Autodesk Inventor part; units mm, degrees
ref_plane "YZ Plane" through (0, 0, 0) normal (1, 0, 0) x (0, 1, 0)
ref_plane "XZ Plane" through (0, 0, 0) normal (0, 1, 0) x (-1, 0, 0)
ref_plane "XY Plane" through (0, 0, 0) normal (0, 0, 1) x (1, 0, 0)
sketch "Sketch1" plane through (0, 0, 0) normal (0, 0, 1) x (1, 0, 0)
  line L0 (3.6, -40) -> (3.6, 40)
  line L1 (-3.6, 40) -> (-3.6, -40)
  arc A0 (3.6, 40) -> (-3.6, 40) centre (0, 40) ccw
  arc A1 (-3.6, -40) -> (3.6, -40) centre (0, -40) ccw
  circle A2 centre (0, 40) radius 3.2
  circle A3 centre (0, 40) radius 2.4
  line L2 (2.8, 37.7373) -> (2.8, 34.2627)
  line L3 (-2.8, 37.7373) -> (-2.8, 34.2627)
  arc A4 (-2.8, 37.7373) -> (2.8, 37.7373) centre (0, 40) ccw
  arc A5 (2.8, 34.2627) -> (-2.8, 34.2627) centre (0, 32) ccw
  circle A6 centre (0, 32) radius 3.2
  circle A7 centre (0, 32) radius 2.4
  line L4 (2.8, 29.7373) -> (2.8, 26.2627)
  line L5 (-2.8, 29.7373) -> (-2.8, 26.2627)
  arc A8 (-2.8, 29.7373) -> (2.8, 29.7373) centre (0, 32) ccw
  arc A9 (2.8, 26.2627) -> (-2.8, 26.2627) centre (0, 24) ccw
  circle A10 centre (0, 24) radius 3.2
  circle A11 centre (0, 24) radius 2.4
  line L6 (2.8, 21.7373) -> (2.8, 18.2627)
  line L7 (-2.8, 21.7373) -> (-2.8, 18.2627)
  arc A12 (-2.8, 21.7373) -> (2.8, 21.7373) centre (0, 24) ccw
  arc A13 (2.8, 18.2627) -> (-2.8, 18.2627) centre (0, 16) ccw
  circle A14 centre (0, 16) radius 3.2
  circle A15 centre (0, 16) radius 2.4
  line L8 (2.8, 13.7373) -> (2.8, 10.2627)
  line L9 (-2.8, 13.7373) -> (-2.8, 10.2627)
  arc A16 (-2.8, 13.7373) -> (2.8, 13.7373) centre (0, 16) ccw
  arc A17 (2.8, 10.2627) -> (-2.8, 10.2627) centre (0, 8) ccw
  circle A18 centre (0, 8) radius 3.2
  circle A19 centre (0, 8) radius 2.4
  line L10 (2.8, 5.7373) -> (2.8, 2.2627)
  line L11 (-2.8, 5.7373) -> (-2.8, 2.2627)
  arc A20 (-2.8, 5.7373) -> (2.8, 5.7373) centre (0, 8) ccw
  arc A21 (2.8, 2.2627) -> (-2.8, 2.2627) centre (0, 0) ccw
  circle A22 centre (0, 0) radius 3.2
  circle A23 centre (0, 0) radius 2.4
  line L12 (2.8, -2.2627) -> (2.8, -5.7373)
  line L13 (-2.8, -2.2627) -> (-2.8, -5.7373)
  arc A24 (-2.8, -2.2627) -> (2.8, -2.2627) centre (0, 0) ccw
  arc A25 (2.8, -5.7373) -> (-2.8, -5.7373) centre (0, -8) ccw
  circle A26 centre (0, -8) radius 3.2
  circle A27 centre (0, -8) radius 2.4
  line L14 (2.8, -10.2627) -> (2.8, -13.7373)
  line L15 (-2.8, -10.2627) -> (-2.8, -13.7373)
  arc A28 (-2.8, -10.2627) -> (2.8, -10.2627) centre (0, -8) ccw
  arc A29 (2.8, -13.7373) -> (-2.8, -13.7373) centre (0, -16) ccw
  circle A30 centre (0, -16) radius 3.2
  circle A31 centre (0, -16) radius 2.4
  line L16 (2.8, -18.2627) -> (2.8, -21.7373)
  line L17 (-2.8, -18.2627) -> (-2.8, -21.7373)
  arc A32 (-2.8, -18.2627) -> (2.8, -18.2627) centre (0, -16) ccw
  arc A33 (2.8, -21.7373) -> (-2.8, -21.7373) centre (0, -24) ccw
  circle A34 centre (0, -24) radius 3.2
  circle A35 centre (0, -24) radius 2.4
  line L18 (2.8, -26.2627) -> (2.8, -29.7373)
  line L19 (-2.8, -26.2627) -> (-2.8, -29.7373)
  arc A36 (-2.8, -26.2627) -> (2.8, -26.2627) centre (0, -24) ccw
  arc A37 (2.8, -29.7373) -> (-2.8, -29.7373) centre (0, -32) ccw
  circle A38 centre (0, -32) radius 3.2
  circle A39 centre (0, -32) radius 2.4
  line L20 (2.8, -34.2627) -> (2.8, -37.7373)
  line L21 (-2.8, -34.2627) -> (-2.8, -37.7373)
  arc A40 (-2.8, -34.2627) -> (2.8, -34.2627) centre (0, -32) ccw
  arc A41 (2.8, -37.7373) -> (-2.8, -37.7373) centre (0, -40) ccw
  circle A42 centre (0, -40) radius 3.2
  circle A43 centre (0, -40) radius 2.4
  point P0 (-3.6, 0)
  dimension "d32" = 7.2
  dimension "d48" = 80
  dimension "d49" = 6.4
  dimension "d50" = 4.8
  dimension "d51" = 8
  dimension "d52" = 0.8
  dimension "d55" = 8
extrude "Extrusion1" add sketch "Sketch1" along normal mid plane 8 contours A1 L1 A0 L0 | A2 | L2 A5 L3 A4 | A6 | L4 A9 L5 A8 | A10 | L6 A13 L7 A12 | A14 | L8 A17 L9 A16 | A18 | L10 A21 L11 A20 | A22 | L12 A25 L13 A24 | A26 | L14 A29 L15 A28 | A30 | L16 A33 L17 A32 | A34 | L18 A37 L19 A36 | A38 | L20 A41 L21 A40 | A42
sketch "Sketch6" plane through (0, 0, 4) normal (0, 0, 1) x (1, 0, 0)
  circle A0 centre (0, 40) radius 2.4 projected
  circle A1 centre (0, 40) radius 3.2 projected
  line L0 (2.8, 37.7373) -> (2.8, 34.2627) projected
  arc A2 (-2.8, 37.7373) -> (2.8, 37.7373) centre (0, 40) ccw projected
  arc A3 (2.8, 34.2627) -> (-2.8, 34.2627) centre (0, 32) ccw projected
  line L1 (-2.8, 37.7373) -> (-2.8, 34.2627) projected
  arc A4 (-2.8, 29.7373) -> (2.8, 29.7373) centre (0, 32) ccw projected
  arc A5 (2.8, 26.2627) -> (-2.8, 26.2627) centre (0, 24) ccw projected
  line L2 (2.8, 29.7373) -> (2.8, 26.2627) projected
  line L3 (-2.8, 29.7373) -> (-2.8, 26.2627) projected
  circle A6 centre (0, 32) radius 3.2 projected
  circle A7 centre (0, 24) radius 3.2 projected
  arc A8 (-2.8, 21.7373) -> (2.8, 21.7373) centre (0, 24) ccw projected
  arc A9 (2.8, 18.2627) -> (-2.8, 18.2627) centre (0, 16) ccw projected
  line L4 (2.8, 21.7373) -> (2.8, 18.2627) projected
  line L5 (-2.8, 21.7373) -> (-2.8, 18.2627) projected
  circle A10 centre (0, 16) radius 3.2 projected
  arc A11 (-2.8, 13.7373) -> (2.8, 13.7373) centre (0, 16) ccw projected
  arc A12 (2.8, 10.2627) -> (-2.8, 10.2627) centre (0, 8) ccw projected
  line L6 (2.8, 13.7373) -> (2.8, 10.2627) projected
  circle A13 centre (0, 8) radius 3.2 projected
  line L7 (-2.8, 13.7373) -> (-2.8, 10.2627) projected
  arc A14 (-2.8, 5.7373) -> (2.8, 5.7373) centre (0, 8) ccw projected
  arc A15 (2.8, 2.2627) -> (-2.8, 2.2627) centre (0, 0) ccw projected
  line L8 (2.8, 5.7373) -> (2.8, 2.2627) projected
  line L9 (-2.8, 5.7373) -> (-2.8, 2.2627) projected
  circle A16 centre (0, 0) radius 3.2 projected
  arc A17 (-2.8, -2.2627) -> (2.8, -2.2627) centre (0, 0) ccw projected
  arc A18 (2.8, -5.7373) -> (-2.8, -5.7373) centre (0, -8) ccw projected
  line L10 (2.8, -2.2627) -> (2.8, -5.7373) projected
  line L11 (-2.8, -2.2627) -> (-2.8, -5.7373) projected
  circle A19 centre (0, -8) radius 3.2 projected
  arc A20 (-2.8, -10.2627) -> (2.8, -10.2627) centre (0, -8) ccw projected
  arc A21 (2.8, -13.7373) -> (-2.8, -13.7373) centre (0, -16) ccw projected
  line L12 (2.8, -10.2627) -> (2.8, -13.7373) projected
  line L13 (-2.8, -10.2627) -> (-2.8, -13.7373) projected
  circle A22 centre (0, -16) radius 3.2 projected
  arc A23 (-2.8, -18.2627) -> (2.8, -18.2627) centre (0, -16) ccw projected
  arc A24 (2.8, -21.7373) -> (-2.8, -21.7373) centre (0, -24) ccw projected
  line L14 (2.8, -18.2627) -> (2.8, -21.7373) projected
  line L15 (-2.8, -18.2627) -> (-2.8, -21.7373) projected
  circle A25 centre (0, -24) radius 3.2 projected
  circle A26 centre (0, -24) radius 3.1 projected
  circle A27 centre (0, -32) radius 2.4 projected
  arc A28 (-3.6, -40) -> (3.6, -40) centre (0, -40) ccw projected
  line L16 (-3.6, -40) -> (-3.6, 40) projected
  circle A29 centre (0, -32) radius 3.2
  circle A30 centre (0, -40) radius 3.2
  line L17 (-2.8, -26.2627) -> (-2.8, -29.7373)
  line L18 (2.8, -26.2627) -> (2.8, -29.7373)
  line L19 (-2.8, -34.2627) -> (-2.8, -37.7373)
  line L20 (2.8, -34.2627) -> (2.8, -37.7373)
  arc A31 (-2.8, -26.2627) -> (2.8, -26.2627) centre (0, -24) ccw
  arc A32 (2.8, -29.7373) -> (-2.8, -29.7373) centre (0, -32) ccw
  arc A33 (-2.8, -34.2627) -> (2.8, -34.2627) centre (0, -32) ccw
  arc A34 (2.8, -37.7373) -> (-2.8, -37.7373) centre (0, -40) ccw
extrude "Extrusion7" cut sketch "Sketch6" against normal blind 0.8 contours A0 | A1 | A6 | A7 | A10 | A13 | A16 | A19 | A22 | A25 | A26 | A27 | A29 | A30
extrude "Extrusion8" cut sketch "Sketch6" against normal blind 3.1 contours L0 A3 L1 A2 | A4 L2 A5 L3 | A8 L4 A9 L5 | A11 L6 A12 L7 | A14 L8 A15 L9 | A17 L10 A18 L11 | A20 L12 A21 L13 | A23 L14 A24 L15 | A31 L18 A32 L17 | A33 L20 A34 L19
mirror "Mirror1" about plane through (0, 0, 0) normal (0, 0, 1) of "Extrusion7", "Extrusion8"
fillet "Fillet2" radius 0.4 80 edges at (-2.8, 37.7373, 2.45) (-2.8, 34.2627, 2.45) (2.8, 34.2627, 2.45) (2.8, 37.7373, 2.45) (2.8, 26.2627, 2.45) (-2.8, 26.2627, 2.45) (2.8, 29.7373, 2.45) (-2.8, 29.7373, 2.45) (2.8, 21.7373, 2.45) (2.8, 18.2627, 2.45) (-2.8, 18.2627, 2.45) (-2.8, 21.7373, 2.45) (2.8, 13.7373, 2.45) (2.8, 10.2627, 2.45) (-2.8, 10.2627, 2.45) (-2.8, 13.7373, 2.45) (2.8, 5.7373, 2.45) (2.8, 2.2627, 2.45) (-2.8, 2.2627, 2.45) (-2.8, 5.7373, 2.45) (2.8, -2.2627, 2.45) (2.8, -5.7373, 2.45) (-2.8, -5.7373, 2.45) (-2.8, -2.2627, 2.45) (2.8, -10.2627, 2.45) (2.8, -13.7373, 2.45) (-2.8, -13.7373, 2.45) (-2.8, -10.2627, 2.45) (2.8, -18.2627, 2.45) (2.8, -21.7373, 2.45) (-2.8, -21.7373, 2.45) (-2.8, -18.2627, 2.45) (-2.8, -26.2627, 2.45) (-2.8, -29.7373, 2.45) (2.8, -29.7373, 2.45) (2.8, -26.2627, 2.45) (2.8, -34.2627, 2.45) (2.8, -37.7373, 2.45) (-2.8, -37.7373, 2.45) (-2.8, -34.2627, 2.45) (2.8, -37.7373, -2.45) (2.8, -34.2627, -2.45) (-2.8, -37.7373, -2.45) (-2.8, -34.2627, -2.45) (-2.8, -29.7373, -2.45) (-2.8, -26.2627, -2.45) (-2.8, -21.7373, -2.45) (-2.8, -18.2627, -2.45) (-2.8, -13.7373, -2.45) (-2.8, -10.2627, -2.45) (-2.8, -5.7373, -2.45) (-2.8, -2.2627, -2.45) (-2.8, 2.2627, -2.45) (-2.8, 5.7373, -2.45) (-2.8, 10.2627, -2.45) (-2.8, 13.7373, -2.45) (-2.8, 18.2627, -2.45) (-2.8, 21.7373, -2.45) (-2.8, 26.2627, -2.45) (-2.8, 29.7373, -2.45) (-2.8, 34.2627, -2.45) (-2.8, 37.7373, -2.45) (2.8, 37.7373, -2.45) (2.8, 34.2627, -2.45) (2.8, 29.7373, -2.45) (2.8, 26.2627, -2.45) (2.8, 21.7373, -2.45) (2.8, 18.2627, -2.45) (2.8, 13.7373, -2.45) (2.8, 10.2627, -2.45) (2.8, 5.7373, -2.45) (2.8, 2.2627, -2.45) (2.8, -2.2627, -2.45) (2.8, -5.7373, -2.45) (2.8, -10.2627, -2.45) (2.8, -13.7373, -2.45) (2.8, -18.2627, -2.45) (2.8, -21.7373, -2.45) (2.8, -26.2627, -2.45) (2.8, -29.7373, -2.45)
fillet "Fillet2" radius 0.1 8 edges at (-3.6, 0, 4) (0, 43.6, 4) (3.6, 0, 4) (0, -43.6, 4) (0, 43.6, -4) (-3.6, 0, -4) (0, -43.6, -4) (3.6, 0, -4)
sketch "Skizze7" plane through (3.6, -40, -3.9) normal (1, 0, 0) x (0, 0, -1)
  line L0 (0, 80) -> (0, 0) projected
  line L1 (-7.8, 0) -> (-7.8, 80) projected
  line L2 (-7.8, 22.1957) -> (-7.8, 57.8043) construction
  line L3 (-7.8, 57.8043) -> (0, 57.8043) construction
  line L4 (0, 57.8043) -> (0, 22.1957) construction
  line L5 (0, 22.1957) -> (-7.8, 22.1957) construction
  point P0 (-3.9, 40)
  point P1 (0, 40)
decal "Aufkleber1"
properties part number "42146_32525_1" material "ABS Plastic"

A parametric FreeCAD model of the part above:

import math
import FreeCAD as App
import Part
import Sketcher
from FreeCAD import Vector
Q = App.Units.Quantity


def edges_at(feature, points):
    """Names of the edges that pass closest to the given points."""
    edges = feature.Shape.Edges
    near = lambda p: min(range(len(edges)), key=lambda i: edges[i].distToShape(Part.Vertex(*p))[0])
    return sorted({f"Edge{near(p) + 1}" for p in points})

doc = App.newDocument("Part")
body = doc.addObject("PartDesign::Body", "Body")

sketch1 = body.newObject("Sketcher::SketchObject", "Sketch")
sketch1.AttachmentSupport = (doc.getObject("XY_Plane"), [""])
sketch1.MapMode = "FlatFace"
sketch1.addGeometry([
    Part.ArcOfCircle(Part.Circle(Vector(0, -40, 0), Vector(0, 0, 1), 3.6), math.radians(180), math.radians(360)),
    Part.LineSegment(Vector(3.6, -40, 0), Vector(3.6, 40, 0)),
    Part.ArcOfCircle(Part.Circle(Vector(0, 40, 0), Vector(0, 0, 1), 3.6), math.radians(0), math.radians(180)),
    Part.LineSegment(Vector(-3.6, 40, 0), Vector(-3.6, -40, 0)),
    Part.Circle(Vector(0, -40, 0), Vector(0, 0, 1), 2.4),
    Part.Circle(Vector(0, -32, 0), Vector(0, 0, 1), 2.4),
    Part.Circle(Vector(0, -24, 0), Vector(0, 0, 1), 2.4),
    Part.Circle(Vector(0, -16, 0), Vector(0, 0, 1), 2.4),
    Part.Circle(Vector(0, -8, 0), Vector(0, 0, 1), 2.4),
    Part.Circle(Vector(0, 0, 0), Vector(0, 0, 1), 2.4),
    Part.Circle(Vector(0, 8, 0), Vector(0, 0, 1), 2.4),
    Part.Circle(Vector(0, 16, 0), Vector(0, 0, 1), 2.4),
    Part.Circle(Vector(0, 24, 0), Vector(0, 0, 1), 2.4),
    Part.Circle(Vector(0, 32, 0), Vector(0, 0, 1), 2.4),
    Part.Circle(Vector(0, 40, 0), Vector(0, 0, 1), 2.4),
], False)
sketch1.addConstraint([
    Sketcher.Constraint("Tangent", 0, 2, 1, 1),
    Sketcher.Constraint("Tangent", 1, 2, 2, 1),
    Sketcher.Constraint("Tangent", 2, 2, 3, 1),
    Sketcher.Constraint("Tangent", 3, 2, 0, 1),
    Sketcher.Constraint("Vertical", 1),
    Sketcher.Constraint("Vertical", 3),
    Sketcher.Constraint("Coincident", 9, 3, -1, 1),
    Sketcher.Constraint("Coincident", 4, 3, 0, 3),
    Sketcher.Constraint("Coincident", 14, 3, 2, 3),
    Sketcher.Constraint("Equal", 4, 5),
    Sketcher.Constraint("Equal", 5, 6),
    Sketcher.Constraint("Equal", 6, 7),
    Sketcher.Constraint("Equal", 7, 8),
    Sketcher.Constraint("Equal", 8, 9),
    Sketcher.Constraint("Equal", 9, 10),
    Sketcher.Constraint("Equal", 10, 11),
    Sketcher.Constraint("Equal", 11, 12),
    Sketcher.Constraint("Equal", 12, 13),
    Sketcher.Constraint("Equal", 13, 14),
    Sketcher.Constraint("Symmetric", 0, 3, 2, 3, -1, 1),
    Sketcher.Constraint("Symmetric", 8, 3, 10, 3, -1, 1),
    Sketcher.Constraint("Symmetric", 7, 3, 11, 3, -1, 1),
    Sketcher.Constraint("Symmetric", 6, 3, 12, 3, -1, 1),
    Sketcher.Constraint("Symmetric", 5, 3, 13, 3, -1, 1),
    Sketcher.Constraint("PointOnObject", 5, 3, -2),
    Sketcher.Constraint("PointOnObject", 6, 3, -2),
    Sketcher.Constraint("PointOnObject", 7, 3, -2),
    Sketcher.Constraint("PointOnObject", 8, 3, -2),
    Sketcher.Constraint("Diameter", 4, Q("4.8 mm")),
    Sketcher.Constraint("Radius", 0, Q("3.6 mm")),
    Sketcher.Constraint("DistanceY", 1, 1, 1, 2, Q("80 mm")),
    Sketcher.Constraint("DistanceY", 8, 3, -1, 1, Q("8 mm")),
    Sketcher.Constraint("DistanceY", 0, 3, 5, 3, Q("8 mm")),
    Sketcher.Constraint("DistanceY", 5, 3, 6, 3, Q("8 mm")),
    Sketcher.Constraint("DistanceY", 6, 3, 7, 3, Q("8 mm")),
])
pad1 = body.newObject("PartDesign::Pad", "Pad")
pad1.Profile = sketch1
pad1.Length = 8
pad1.Midplane = True

sketch2 = body.newObject("Sketcher::SketchObject", "Sketch001")
sketch2.AttachmentSupport = (doc.getObject("XY_Plane"), [""])
sketch2.MapMode = "FlatFace"
sketch2.AttachmentOffset = App.Placement(Vector(0, 0, 4), App.Rotation())
sketch2.addGeometry([
    Part.Circle(Vector(0, 40, 0), Vector(0, 0, 1), 3.2),
    Part.Circle(Vector(0, 32, 0), Vector(0, 0, 1), 3.2),
    Part.Circle(Vector(0, 24, 0), Vector(0, 0, 1), 3.2),
    Part.Circle(Vector(0, 16, 0), Vector(0, 0, 1), 3.2),
    Part.Circle(Vector(0, 8, 0), Vector(0, 0, 1), 3.2),
    Part.Circle(Vector(0, 0, 0), Vector(0, 0, 1), 3.2),
    Part.Circle(Vector(0, -8, 0), Vector(0, 0, 1), 3.2),
    Part.Circle(Vector(0, -16, 0), Vector(0, 0, 1), 3.2),
    Part.Circle(Vector(0, -24, 0), Vector(0, 0, 1), 3.2),
    Part.Circle(Vector(0, -32, 0), Vector(0, 0, 1), 3.2),
    Part.Circle(Vector(0, -40, 0), Vector(0, 0, 1), 3.2),
], False)
sketch2.addConstraint([
    Sketcher.Constraint("Coincident", 5, 3, -1, 1),
    Sketcher.Constraint("Equal", 0, 1),
    Sketcher.Constraint("Equal", 1, 2),
    Sketcher.Constraint("Equal", 2, 3),
    Sketcher.Constraint("Equal", 3, 4),
    Sketcher.Constraint("Equal", 4, 5),
    Sketcher.Constraint("Equal", 5, 6),
    Sketcher.Constraint("Equal", 6, 7),
    Sketcher.Constraint("Equal", 7, 8),
    Sketcher.Constraint("Equal", 8, 9),
    Sketcher.Constraint("Equal", 9, 10),
    Sketcher.Constraint("Symmetric", 4, 3, 6, 3, -1, 1),
    Sketcher.Constraint("Symmetric", 3, 3, 7, 3, -1, 1),
    Sketcher.Constraint("Symmetric", 2, 3, 8, 3, -1, 1),
    Sketcher.Constraint("Symmetric", 1, 3, 9, 3, -1, 1),
    Sketcher.Constraint("Symmetric", 0, 3, 10, 3, -1, 1),
    Sketcher.Constraint("PointOnObject", 0, 3, -2),
    Sketcher.Constraint("PointOnObject", 1, 3, -2),
    Sketcher.Constraint("PointOnObject", 2, 3, -2),
    Sketcher.Constraint("PointOnObject", 3, 3, -2),
    Sketcher.Constraint("PointOnObject", 4, 3, -2),
    Sketcher.Constraint("Diameter", 0, Q("6.4 mm")),
    Sketcher.Constraint("DistanceY", -1, 1, 0, 3, Q("40 mm")),
    Sketcher.Constraint("DistanceY", -1, 1, 1, 3, Q("32 mm")),
    Sketcher.Constraint("DistanceY", -1, 1, 2, 3, Q("24 mm")),
    Sketcher.Constraint("DistanceY", -1, 1, 3, 3, Q("16 mm")),
    Sketcher.Constraint("DistanceY", -1, 1, 4, 3, Q("8 mm")),
])
pocket1 = body.newObject("PartDesign::Pocket", "Pocket")
pocket1.Profile = sketch2
pocket1.Length = 0.8

sketch3 = body.newObject("Sketcher::SketchObject", "Sketch002")
sketch3.AttachmentSupport = (doc.getObject("XY_Plane"), [""])
sketch3.MapMode = "FlatFace"
sketch3.AttachmentOffset = App.Placement(Vector(0, 0, 4), App.Rotation())
sketch3.addGeometry([
    Part.LineSegment(Vector(2.8, 34.3, 0), Vector(2.8, 37.7, 0)),
    Part.ArcOfCircle(Part.Circle(Vector(0, 40, 0), Vector(0, 0, 1), 3.6), math.radians(-141), math.radians(-39)),
    Part.LineSegment(Vector(-2.8, 37.7, 0), Vector(-2.8, 34.3, 0)),
    Part.ArcOfCircle(Part.Circle(Vector(0, 32, 0), Vector(0, 0, 1), 3.6), math.radians(39), math.radians(141)),
    Part.ArcOfCircle(Part.Circle(Vector(0, 32, 0), Vector(0, 0, 1), 3.6), math.radians(-141), math.radians(-39)),
    Part.LineSegment(Vector(-2.8, 29.7, 0), Vector(-2.8, 26.3, 0)),
    Part.ArcOfCircle(Part.Circle(Vector(0, 24, 0), Vector(0, 0, 1), 3.6), math.radians(39), math.radians(141)),
    Part.LineSegment(Vector(2.8, 26.3, 0), Vector(2.8, 29.7, 0)),
    Part.ArcOfCircle(Part.Circle(Vector(0, 24, 0), Vector(0, 0, 1), 3.6), math.radians(-141), math.radians(-39)),
    Part.LineSegment(Vector(-2.8, 21.7, 0), Vector(-2.8, 18.3, 0)),
    Part.ArcOfCircle(Part.Circle(Vector(0, 16, 0), Vector(0, 0, 1), 3.6), math.radians(39), math.radians(141)),
    Part.LineSegment(Vector(2.8, 18.3, 0), Vector(2.8, 21.7, 0)),
    Part.ArcOfCircle(Part.Circle(Vector(0, 16, 0), Vector(0, 0, 1), 3.6), math.radians(-141), math.radians(-39)),
    Part.LineSegment(Vector(-2.8, 13.7, 0), Vector(-2.8, 10.3, 0)),
    Part.ArcOfCircle(Part.Circle(Vector(0, 8, 0), Vector(0, 0, 1), 3.6), math.radians(39), math.radians(141)),
    Part.LineSegment(Vector(2.8, 10.3, 0), Vector(2.8, 13.7, 0)),
    Part.ArcOfCircle(Part.Circle(Vector(0, 8, 0), Vector(0, 0, 1), 3.6), math.radians(-141), math.radians(-39)),
    Part.LineSegment(Vector(-2.8, 5.7, 0), Vector(-2.8, 2.3, 0)),
    Part.ArcOfCircle(Part.Circle(Vector(0, 0, 0), Vector(0, 0, 1), 3.6), math.radians(39), math.radians(141)),
    Part.LineSegment(Vector(2.8, 2.3, 0), Vector(2.8, 5.7, 0)),
    Part.ArcOfCircle(Part.Circle(Vector(0, 0, 0), Vector(0, 0, 1), 3.6), math.radians(-141), math.radians(-39)),
    Part.LineSegment(Vector(-2.8, -2.3, 0), Vector(-2.8, -5.7, 0)),
    Part.ArcOfCircle(Part.Circle(Vector(0, -8, 0), Vector(0, 0, 1), 3.6), math.radians(39), math.radians(141)),
    Part.LineSegment(Vector(2.8, -5.7, 0), Vector(2.8, -2.3, 0)),
    Part.ArcOfCircle(Part.Circle(Vector(0, -8, 0), Vector(0, 0, 1), 3.6), math.radians(-141), math.radians(-39)),
    Part.LineSegment(Vector(-2.8, -10.3, 0), Vector(-2.8, -13.7, 0)),
    Part.ArcOfCircle(Part.Circle(Vector(0, -16, 0), Vector(0, 0, 1), 3.6), math.radians(39), math.radians(141)),
    Part.LineSegment(Vector(2.8, -13.7, 0), Vector(2.8, -10.3, 0)),
    Part.ArcOfCircle(Part.Circle(Vector(0, -16, 0), Vector(0, 0, 1), 3.6), math.radians(-141), math.radians(-39)),
    Part.LineSegment(Vector(-2.8, -18.3, 0), Vector(-2.8, -21.7, 0)),
    Part.ArcOfCircle(Part.Circle(Vector(0, -24, 0), Vector(0, 0, 1), 3.6), math.radians(39), math.radians(141)),
    Part.LineSegment(Vector(2.8, -21.7, 0), Vector(2.8, -18.3, 0)),
    Part.ArcOfCircle(Part.Circle(Vector(0, -24, 0), Vector(0, 0, 1), 3.6), math.radians(-141), math.radians(-39)),
    Part.LineSegment(Vector(-2.8, -26.3, 0), Vector(-2.8, -29.7, 0)),
    Part.ArcOfCircle(Part.Circle(Vector(0, -32, 0), Vector(0, 0, 1), 3.6), math.radians(39), math.radians(141)),
    Part.LineSegment(Vector(2.8, -29.7, 0), Vector(2.8, -26.3, 0)),
    Part.ArcOfCircle(Part.Circle(Vector(0, -32, 0), Vector(0, 0, 1), 3.6), math.radians(-141), math.radians(-39)),
    Part.LineSegment(Vector(-2.8, -34.3, 0), Vector(-2.8, -37.7, 0)),
    Part.ArcOfCircle(Part.Circle(Vector(0, -40, 0), Vector(0, 0, 1), 3.6), math.radians(39), math.radians(141)),
    Part.LineSegment(Vector(2.8, -37.7, 0), Vector(2.8, -34.3, 0)),
], False)
sketch3.addConstraint([
    Sketcher.Constraint("Coincident", 0, 2, 1, 2),
    Sketcher.Constraint("Coincident", 1, 1, 2, 1),
    Sketcher.Constraint("Coincident", 2, 2, 3, 2),
    Sketcher.Constraint("Coincident", 3, 1, 0, 1),
    Sketcher.Constraint("Coincident", 4, 1, 5, 1),
    Sketcher.Constraint("Coincident", 5, 2, 6, 2),
    Sketcher.Constraint("Coincident", 6, 1, 7, 1),
    Sketcher.Constraint("Coincident", 7, 2, 4, 2),
    Sketcher.Constraint("Coincident", 8, 1, 9, 1),
    Sketcher.Constraint("Coincident", 9, 2, 10, 2),
    Sketcher.Constraint("Coincident", 10, 1, 11, 1),
    Sketcher.Constraint("Coincident", 11, 2, 8, 2),
    Sketcher.Constraint("Coincident", 12, 1, 13, 1),
    Sketcher.Constraint("Coincident", 13, 2, 14, 2),
    Sketcher.Constraint("Coincident", 14, 1, 15, 1),
    Sketcher.Constraint("Coincident", 15, 2, 12, 2),
    Sketcher.Constraint("Coincident", 16, 1, 17, 1),
    Sketcher.Constraint("Coincident", 17, 2, 18, 2),
    Sketcher.Constraint("Coincident", 18, 1, 19, 1),
    Sketcher.Constraint("Coincident", 19, 2, 16, 2),
    Sketcher.Constraint("Coincident", 20, 1, 21, 1),
    Sketcher.Constraint("Coincident", 21, 2, 22, 2),
    Sketcher.Constraint("Coincident", 22, 1, 23, 1),
    Sketcher.Constraint("Coincident", 23, 2, 20, 2),
    Sketcher.Constraint("Coincident", 24, 1, 25, 1),
    Sketcher.Constraint("Coincident", 25, 2, 26, 2),
    Sketcher.Constraint("Coincident", 26, 1, 27, 1),
    Sketcher.Constraint("Coincident", 27, 2, 24, 2),
    Sketcher.Constraint("Coincident", 28, 1, 29, 1),
    Sketcher.Constraint("Coincident", 29, 2, 30, 2),
    Sketcher.Constraint("Coincident", 30, 1, 31, 1),
    Sketcher.Constraint("Coincident", 31, 2, 28, 2),
    Sketcher.Constraint("Coincident", 32, 1, 33, 1),
    Sketcher.Constraint("Coincident", 33, 2, 34, 2),
    Sketcher.Constraint("Coincident", 34, 1, 35, 1),
    Sketcher.Constraint("Coincident", 35, 2, 32, 2),
    Sketcher.Constraint("Coincident", 36, 1, 37, 1),
    Sketcher.Constraint("Coincident", 37, 2, 38, 2),
    Sketcher.Constraint("Coincident", 38, 1, 39, 1),
    Sketcher.Constraint("Coincident", 39, 2, 36, 2),
    Sketcher.Constraint("Vertical", 0),
    Sketcher.Constraint("Vertical", 2),
    Sketcher.Constraint("Vertical", 5),
    Sketcher.Constraint("Vertical", 7),
    Sketcher.Constraint("Vertical", 9),
    Sketcher.Constraint("Vertical", 11),
    Sketcher.Constraint("Vertical", 13),
    Sketcher.Constraint("Vertical", 15),
    Sketcher.Constraint("Vertical", 17),
    Sketcher.Constraint("Vertical", 19),
    Sketcher.Constraint("Vertical", 21),
    Sketcher.Constraint("Vertical", 23),
    Sketcher.Constraint("Vertical", 25),
    Sketcher.Constraint("Vertical", 27),
    Sketcher.Constraint("Vertical", 29),
    Sketcher.Constraint("Vertical", 31),
    Sketcher.Constraint("Vertical", 33),
    Sketcher.Constraint("Vertical", 35),
    Sketcher.Constraint("Vertical", 37),
    Sketcher.Constraint("Vertical", 39),
    Sketcher.Constraint("Coincident", 18, 3, -1, 1),
    Sketcher.Constraint("Coincident", 20, 3, -1, 1),
    Sketcher.Constraint("Coincident", 4, 3, 3, 3),
    Sketcher.Constraint("Coincident", 8, 3, 6, 3),
    Sketcher.Constraint("Coincident", 12, 3, 10, 3),
    Sketcher.Constraint("Coincident", 16, 3, 14, 3),
    Sketcher.Constraint("Coincident", 24, 3, 22, 3),
    Sketcher.Constraint("Coincident", 28, 3, 26, 3),
    Sketcher.Constraint("Coincident", 32, 3, 30, 3),
    Sketcher.Constraint("Coincident", 36, 3, 34, 3),
    Sketcher.Constraint("Equal", 1, 3),
    Sketcher.Constraint("Equal", 3, 4),
    Sketcher.Constraint("Equal", 4, 6),
    Sketcher.Constraint("Equal", 6, 8),
    Sketcher.Constraint("Equal", 8, 10),
    Sketcher.Constraint("Equal", 10, 12),
    Sketcher.Constraint("Equal", 12, 14),
    Sketcher.Constraint("Equal", 14, 16),
    Sketcher.Constraint("Equal", 16, 18),
    Sketcher.Constraint("Equal", 18, 20),
    Sketcher.Constraint("Equal", 20, 22),
    Sketcher.Constraint("Equal", 22, 24),
    Sketcher.Constraint("Equal", 24, 26),
    Sketcher.Constraint("Equal", 26, 28),
    Sketcher.Constraint("Equal", 28, 30),
    Sketcher.Constraint("Equal", 30, 32),
    Sketcher.Constraint("Equal", 32, 34),
    Sketcher.Constraint("Equal", 34, 36),
    Sketcher.Constraint("Equal", 36, 38),
    Sketcher.Constraint("Symmetric", 14, 3, 22, 3, -1, 1),
    Sketcher.Constraint("Symmetric", 10, 3, 26, 3, -1, 1),
    Sketcher.Constraint("Symmetric", 6, 3, 30, 3, -1, 1),
    Sketcher.Constraint("Symmetric", 3, 3, 34, 3, -1, 1),
    Sketcher.Constraint("Symmetric", 1, 3, 38, 3, -1, 1),
    Sketcher.Constraint("Symmetric", 0, 2, 1, 1, -2),
    Sketcher.Constraint("Symmetric", 5, 2, 6, 1, -2),
    Sketcher.Constraint("Symmetric", 9, 2, 10, 1, -2),
    Sketcher.Constraint("Symmetric", 13, 2, 14, 1, -2),
    Sketcher.Constraint("Symmetric", 33, 2, 34, 1, -2),
    Sketcher.Constraint("Horizontal", 17, 2, 18, 1),
    Sketcher.Constraint("Horizontal", 21, 2, 22, 1),
    Sketcher.Constraint("Horizontal", 25, 2, 26, 1),
    Sketcher.Constraint("Horizontal", 29, 2, 30, 1),
    Sketcher.Constraint("Horizontal", 37, 2, 38, 1),
    Sketcher.Constraint("Vertical", 2, 2, 4, 1),
    Sketcher.Constraint("Vertical", 5, 2, 8, 1),
    Sketcher.Constraint("Vertical", 9, 2, 12, 1),
    Sketcher.Constraint("Vertical", 13, 2, 16, 1),
    Sketcher.Constraint("Vertical", 17, 2, 20, 1),
    Sketcher.Constraint("Vertical", 21, 2, 24, 1),
    Sketcher.Constraint("Vertical", 25, 2, 28, 1),
    Sketcher.Constraint("Vertical", 29, 2, 32, 1),
    Sketcher.Constraint("Vertical", 33, 2, 36, 1),
    Sketcher.Constraint("Equal", 2, 5),
    Sketcher.Constraint("Equal", 7, 9),
    Sketcher.Constraint("Equal", 11, 13),
    Sketcher.Constraint("Equal", 15, 17),
    Sketcher.Constraint("Radius", 1, Q("3.6 mm")),
    Sketcher.Constraint("DistanceY", -1, 1, 1, 3, Q("40 mm")),
    Sketcher.Constraint("DistanceX", -1, 1, 0, 2, Q("2.8 mm")),
])
pocket2 = body.newObject("PartDesign::Pocket", "Pocket001")
pocket2.Profile = sketch3
pocket2.Length = 3.1
doc.recompute()

mirrored = body.newObject("PartDesign::Mirrored", "Mirrored")
mirrored.Originals = [pocket1, pocket2]
mirrored.MirrorPlane = (doc.getObject("XY_Plane"), [""])
body.Tip = mirrored
doc.recompute()

fillet = body.newObject("PartDesign::Fillet", "Fillet")
fillet.Base = (mirrored, edges_at(mirrored, [
    (-2.8, 37.737, 2.45),
    (-2.8, 34.263, 2.45),
    (2.8, 34.263, 2.45),
    (2.8, 37.737, 2.45),
    (2.8, 26.263, 2.45),
    (-2.8, 26.263, 2.45),
    (2.8, 29.737, 2.45),
    (-2.8, 29.737, 2.45),
    (2.8, 21.737, 2.45),
    (2.8, 18.263, 2.45),
    (-2.8, 18.263, 2.45),
    (-2.8, 21.737, 2.45),
    (2.8, 13.737, 2.45),
    (2.8, 10.263, 2.45),
    (-2.8, 10.263, 2.45),
    (-2.8, 13.737, 2.45),
    (2.8, 5.737, 2.45),
    (2.8, 2.263, 2.45),
    (-2.8, 2.263, 2.45),
    (-2.8, 5.737, 2.45),
    (2.8, -2.263, 2.45),
    (2.8, -5.737, 2.45),
    (-2.8, -5.737, 2.45),
    (-2.8, -2.263, 2.45),
    (2.8, -10.263, 2.45),
    (2.8, -13.737, 2.45),
    (-2.8, -13.737, 2.45),
    (-2.8, -10.263, 2.45),
    (2.8, -18.263, 2.45),
    (2.8, -21.737, 2.45),
    (-2.8, -21.737, 2.45),
    (-2.8, -18.263, 2.45),
    (-2.8, -26.263, 2.45),
    (-2.8, -29.737, 2.45),
    (2.8, -29.737, 2.45),
    (2.8, -26.263, 2.45),
    (2.8, -34.263, 2.45),
    (2.8, -37.737, 2.45),
    (-2.8, -37.737, 2.45),
    (-2.8, -34.263, 2.45),
    (2.8, -37.737, -2.45),
    (2.8, -34.263, -2.45),
    (-2.8, -37.737, -2.45),
    (-2.8, -34.263, -2.45),
    (-2.8, -29.737, -2.45),
    (-2.8, -26.263, -2.45),
    (-2.8, -21.737, -2.45),
    (-2.8, -18.263, -2.45),
    (-2.8, -13.737, -2.45),
    (-2.8, -10.263, -2.45),
    (-2.8, -5.737, -2.45),
    (-2.8, -2.263, -2.45),
    (-2.8, 2.263, -2.45),
    (-2.8, 5.737, -2.45),
    (-2.8, 10.263, -2.45),
    (-2.8, 13.737, -2.45),
    (-2.8, 18.263, -2.45),
    (-2.8, 21.737, -2.45),
    (-2.8, 26.263, -2.45),
    (-2.8, 29.737, -2.45),
    (-2.8, 34.263, -2.45),
    (-2.8, 37.737, -2.45),
    (2.8, 37.737, -2.45),
    (2.8, 34.263, -2.45),
    (2.8, 29.737, -2.45),
    (2.8, 26.263, -2.45),
    (2.8, 21.737, -2.45),
    (2.8, 18.263, -2.45),
    (2.8, 13.737, -2.45),
    (2.8, 10.263, -2.45),
    (2.8, 5.737, -2.45),
    (2.8, 2.263, -2.45),
    (2.8, -2.263, -2.45),
    (2.8, -5.737, -2.45),
    (2.8, -10.263, -2.45),
    (2.8, -13.737, -2.45),
    (2.8, -18.263, -2.45),
    (2.8, -21.737, -2.45),
    (2.8, -26.263, -2.45),
    (2.8, -29.737, -2.45),
]))
fillet.Radius = 0.4
doc.recompute()

fillet2 = body.newObject("PartDesign::Fillet", "Fillet001")
fillet2.Base = (fillet, edges_at(fillet, [
    (-3.6, 0, 4),
    (0, 43.6, 4),
    (3.6, 0, 4),
    (0, -43.6, 4),
    (0, 43.6, -4),
    (-3.6, 0, -4),
    (0, -43.6, -4),
    (3.6, 0, -4),
]))
fillet2.Radius = 0.1

doc.recompute()
